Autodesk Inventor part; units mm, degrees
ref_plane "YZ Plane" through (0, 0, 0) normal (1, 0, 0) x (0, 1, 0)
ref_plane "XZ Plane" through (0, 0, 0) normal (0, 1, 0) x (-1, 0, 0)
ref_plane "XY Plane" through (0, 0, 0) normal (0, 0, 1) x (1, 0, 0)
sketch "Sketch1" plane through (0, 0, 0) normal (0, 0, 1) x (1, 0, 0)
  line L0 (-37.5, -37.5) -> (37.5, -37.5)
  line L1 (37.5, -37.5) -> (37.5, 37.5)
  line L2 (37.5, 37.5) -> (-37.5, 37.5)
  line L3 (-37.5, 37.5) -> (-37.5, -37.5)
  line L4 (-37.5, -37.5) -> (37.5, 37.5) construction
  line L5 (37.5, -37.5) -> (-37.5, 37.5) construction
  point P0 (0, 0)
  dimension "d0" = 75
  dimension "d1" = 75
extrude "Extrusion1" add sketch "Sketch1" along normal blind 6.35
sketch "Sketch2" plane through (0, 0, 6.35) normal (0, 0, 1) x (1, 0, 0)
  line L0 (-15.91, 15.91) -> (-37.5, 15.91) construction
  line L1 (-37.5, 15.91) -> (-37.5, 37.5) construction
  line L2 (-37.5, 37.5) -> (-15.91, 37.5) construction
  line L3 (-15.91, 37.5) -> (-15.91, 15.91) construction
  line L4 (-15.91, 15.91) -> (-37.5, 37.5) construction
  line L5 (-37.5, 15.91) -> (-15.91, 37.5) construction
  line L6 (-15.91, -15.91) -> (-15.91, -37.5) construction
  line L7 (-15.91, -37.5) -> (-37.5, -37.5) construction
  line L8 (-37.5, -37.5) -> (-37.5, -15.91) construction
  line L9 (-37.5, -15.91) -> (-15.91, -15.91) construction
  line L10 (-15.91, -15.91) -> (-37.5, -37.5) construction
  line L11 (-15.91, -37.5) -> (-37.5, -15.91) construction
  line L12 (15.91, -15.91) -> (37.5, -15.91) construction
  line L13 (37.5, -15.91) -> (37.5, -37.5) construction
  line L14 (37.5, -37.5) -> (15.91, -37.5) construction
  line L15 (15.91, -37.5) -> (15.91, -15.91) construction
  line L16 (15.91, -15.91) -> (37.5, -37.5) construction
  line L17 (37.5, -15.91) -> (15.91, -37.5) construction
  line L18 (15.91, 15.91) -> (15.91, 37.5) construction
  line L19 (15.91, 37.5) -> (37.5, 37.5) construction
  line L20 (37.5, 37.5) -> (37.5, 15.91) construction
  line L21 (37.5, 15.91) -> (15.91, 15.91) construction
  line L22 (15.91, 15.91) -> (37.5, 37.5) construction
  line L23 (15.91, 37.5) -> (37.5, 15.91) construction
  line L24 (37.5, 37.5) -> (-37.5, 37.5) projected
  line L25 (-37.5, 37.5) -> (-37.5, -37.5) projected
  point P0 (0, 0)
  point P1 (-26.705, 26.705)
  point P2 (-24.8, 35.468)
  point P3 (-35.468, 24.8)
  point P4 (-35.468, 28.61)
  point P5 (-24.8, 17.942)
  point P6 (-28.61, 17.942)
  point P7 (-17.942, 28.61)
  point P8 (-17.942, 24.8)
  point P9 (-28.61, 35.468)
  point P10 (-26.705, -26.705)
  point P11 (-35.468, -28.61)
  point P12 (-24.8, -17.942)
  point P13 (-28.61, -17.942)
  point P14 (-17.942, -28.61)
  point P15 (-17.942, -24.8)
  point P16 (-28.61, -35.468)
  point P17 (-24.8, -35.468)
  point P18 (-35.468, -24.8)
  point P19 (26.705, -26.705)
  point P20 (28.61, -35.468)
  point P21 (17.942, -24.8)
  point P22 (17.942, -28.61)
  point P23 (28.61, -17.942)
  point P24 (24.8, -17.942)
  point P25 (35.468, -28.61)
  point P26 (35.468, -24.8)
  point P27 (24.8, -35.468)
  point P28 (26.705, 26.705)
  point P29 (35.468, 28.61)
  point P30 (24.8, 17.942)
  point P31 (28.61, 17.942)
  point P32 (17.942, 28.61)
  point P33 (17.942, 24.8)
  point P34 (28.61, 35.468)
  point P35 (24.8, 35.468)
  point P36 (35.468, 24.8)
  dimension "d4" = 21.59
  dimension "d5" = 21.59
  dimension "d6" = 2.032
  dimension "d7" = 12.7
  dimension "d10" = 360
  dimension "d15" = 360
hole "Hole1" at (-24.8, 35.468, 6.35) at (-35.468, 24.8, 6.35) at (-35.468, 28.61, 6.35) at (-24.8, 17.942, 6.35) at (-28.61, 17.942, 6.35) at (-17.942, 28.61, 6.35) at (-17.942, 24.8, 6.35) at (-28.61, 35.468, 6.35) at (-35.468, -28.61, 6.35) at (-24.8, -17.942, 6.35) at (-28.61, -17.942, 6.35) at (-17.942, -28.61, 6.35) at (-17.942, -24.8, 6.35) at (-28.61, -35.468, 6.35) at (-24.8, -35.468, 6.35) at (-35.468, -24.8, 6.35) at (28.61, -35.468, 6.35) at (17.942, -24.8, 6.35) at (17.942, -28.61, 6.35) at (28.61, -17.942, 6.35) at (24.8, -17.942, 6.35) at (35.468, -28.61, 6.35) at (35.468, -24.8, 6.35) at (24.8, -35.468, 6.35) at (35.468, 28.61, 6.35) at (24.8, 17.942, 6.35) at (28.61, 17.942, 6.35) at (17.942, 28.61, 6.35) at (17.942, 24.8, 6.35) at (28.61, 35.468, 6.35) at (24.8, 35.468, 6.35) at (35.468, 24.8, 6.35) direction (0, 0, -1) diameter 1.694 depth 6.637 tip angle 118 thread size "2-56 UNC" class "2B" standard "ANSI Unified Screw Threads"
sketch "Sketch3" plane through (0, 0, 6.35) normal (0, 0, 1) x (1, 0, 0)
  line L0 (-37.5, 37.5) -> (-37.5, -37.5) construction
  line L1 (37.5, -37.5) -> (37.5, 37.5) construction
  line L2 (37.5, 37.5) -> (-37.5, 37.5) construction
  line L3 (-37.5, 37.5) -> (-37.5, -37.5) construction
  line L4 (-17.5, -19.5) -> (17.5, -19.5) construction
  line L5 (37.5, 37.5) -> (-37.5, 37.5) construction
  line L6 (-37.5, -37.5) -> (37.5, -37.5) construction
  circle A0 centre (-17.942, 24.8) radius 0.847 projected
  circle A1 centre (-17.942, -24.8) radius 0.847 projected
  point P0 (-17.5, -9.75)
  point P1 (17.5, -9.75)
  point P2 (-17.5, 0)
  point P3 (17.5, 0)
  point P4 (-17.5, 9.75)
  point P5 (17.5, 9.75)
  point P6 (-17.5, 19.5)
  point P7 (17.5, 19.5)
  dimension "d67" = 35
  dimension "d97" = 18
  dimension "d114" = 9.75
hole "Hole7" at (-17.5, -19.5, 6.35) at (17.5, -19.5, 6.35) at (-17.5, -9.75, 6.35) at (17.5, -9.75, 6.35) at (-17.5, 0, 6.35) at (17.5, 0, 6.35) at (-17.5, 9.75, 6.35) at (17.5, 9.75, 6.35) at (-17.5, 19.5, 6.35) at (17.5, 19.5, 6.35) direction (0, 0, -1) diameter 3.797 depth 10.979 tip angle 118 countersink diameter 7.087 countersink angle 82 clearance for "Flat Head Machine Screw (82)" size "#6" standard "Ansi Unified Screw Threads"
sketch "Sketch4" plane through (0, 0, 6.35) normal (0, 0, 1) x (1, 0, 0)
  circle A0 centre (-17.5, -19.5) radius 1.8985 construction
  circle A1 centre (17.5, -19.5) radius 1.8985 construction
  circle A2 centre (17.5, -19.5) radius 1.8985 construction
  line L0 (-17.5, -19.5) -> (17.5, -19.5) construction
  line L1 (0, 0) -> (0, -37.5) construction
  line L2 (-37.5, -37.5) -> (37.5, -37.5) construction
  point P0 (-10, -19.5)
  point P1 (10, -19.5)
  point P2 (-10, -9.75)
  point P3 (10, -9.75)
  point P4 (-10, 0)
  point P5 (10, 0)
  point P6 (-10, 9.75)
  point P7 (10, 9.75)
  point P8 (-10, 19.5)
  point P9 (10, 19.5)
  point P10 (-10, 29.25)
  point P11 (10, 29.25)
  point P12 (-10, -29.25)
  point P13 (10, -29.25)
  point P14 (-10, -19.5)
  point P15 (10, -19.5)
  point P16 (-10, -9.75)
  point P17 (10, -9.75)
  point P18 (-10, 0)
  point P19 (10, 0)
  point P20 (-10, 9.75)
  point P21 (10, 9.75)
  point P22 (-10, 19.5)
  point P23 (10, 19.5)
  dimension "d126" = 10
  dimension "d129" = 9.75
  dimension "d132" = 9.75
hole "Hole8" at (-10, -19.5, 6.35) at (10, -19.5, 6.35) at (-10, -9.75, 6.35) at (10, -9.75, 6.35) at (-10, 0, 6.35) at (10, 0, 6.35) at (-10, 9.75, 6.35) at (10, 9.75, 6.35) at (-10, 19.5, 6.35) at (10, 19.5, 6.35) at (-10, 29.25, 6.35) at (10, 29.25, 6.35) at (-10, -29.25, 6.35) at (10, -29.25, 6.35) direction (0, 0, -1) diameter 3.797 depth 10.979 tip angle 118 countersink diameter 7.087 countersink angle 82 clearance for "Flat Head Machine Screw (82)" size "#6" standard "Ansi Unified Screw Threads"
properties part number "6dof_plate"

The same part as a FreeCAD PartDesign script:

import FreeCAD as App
import Part
import Sketcher
Q = App.Units.Quantity


def add_polygon(sketch, points):
    """Adds a closed chain of lines whose ends are joined by coincident constraints."""
    first, n = sketch.GeometryCount, len(points)
    for a, b in zip(points, points[1:] + points[:1]):
        sketch.addGeometry(Part.LineSegment(App.Vector(*a, 0), App.Vector(*b, 0)), False)
    for i in range(n):
        sketch.addConstraint(Sketcher.Constraint("Coincident", first + i, 2, first + (i + 1) % n, 1))

doc = App.newDocument("Part")
body = doc.addObject("PartDesign::Body", "Body")

sketch1 = body.newObject("Sketcher::SketchObject", "Sketch")
sketch1.AttachmentSupport = (doc.getObject("XY_Plane"), [""])
sketch1.MapMode = "FlatFace"
add_polygon(sketch1, [(-38, 38), (-38, -38), (38, -38), (38, 38)])
sketch1.addConstraint([
    Sketcher.Constraint("Vertical", 0),
    Sketcher.Constraint("Horizontal", 1),
    Sketcher.Constraint("Vertical", 2),
    Sketcher.Constraint("Horizontal", 3),
    Sketcher.Constraint("Symmetric", 0, 2, 2, 2, -1, 1),
    Sketcher.Constraint("Equal", 3, 0),
    Sketcher.Constraint("DistanceX", 1, 1, 1, 2, Q("75 mm")),
])
pad1 = body.newObject("PartDesign::Pad", "Pad")
pad1.Profile = sketch1
pad1.Length = 6.35

sketch2 = body.newObject("Sketcher::SketchObject", "Sketch001")
sketch2.AttachmentSupport = (doc.getObject("XY_Plane"), [""])
sketch2.MapMode = "FlatFace"
sketch2.AttachmentOffset = App.Placement(App.Vector(0, 0, 6.35), App.Rotation())
sketch2.addGeometry([
    Part.Circle(App.Vector(-24.8, 35.5, 0), App.Vector(0, 0, 1), 0.8),
    Part.Circle(App.Vector(-35.5, 24.8, 0), App.Vector(0, 0, 1), 0.8),
    Part.Circle(App.Vector(-35.5, 28.6, 0), App.Vector(0, 0, 1), 0.8),
    Part.Circle(App.Vector(-24.8, 17.9, 0), App.Vector(0, 0, 1), 0.8),
    Part.Circle(App.Vector(-28.6, 17.9, 0), App.Vector(0, 0, 1), 0.8),
    Part.Circle(App.Vector(-17.9, 28.6, 0), App.Vector(0, 0, 1), 0.8),
    Part.Circle(App.Vector(-17.9, 24.8, 0), App.Vector(0, 0, 1), 0.8),
    Part.Circle(App.Vector(-28.6, 35.5, 0), App.Vector(0, 0, 1), 0.8),
    Part.Circle(App.Vector(-35.5, -28.6, 0), App.Vector(0, 0, 1), 0.8),
    Part.Circle(App.Vector(-24.8, -17.9, 0), App.Vector(0, 0, 1), 0.8),
    Part.Circle(App.Vector(-28.6, -17.9, 0), App.Vector(0, 0, 1), 0.8),
    Part.Circle(App.Vector(-17.9, -28.6, 0), App.Vector(0, 0, 1), 0.8),
    Part.Circle(App.Vector(-17.9, -24.8, 0), App.Vector(0, 0, 1), 0.8),
    Part.Circle(App.Vector(-28.6, -35.5, 0), App.Vector(0, 0, 1), 0.8),
    Part.Circle(App.Vector(-24.8, -35.5, 0), App.Vector(0, 0, 1), 0.8),
    Part.Circle(App.Vector(-35.5, -24.8, 0), App.Vector(0, 0, 1), 0.8),
    Part.Circle(App.Vector(28.6, -35.5, 0), App.Vector(0, 0, 1), 0.8),
    Part.Circle(App.Vector(17.9, -24.8, 0), App.Vector(0, 0, 1), 0.8),
    Part.Circle(App.Vector(17.9, -28.6, 0), App.Vector(0, 0, 1), 0.8),
    Part.Circle(App.Vector(28.6, -17.9, 0), App.Vector(0, 0, 1), 0.8),
    Part.Circle(App.Vector(24.8, -17.9, 0), App.Vector(0, 0, 1), 0.8),
    Part.Circle(App.Vector(35.5, -28.6, 0), App.Vector(0, 0, 1), 0.8),
    Part.Circle(App.Vector(35.5, -24.8, 0), App.Vector(0, 0, 1), 0.8),
    Part.Circle(App.Vector(24.8, -35.5, 0), App.Vector(0, 0, 1), 0.8),
    Part.Circle(App.Vector(35.5, 28.6, 0), App.Vector(0, 0, 1), 0.8),
    Part.Circle(App.Vector(24.8, 17.9, 0), App.Vector(0, 0, 1), 0.8),
    Part.Circle(App.Vector(28.6, 17.9, 0), App.Vector(0, 0, 1), 0.8),
    Part.Circle(App.Vector(17.9, 28.6, 0), App.Vector(0, 0, 1), 0.8),
    Part.Circle(App.Vector(17.9, 24.8, 0), App.Vector(0, 0, 1), 0.8),
    Part.Circle(App.Vector(28.6, 35.5, 0), App.Vector(0, 0, 1), 0.8),
    Part.Circle(App.Vector(24.8, 35.5, 0), App.Vector(0, 0, 1), 0.8),
    Part.Circle(App.Vector(35.5, 24.8, 0), App.Vector(0, 0, 1), 0.8),
], False)
sketch2.addConstraint([
    Sketcher.Constraint("Equal", 0, 1),
    Sketcher.Constraint("Equal", 1, 2),
    Sketcher.Constraint("Equal", 2, 3),
    Sketcher.Constraint("Equal", 3, 4),
    Sketcher.Constraint("Equal", 4, 5),
    Sketcher.Constraint("Equal", 5, 6),
    Sketcher.Constraint("Equal", 6, 7),
    Sketcher.Constraint("Equal", 7, 8),
    Sketcher.Constraint("Equal", 8, 9),
    Sketcher.Constraint("Equal", 9, 10),
    Sketcher.Constraint("Equal", 10, 11),
    Sketcher.Constraint("Equal", 11, 12),
    Sketcher.Constraint("Equal", 12, 13),
    Sketcher.Constraint("Equal", 13, 14),
    Sketcher.Constraint("Equal", 14, 15),
    Sketcher.Constraint("Equal", 15, 16),
    Sketcher.Constraint("Equal", 16, 17),
    Sketcher.Constraint("Equal", 17, 18),
    Sketcher.Constraint("Equal", 18, 19),
    Sketcher.Constraint("Equal", 19, 20),
    Sketcher.Constraint("Equal", 20, 21),
    Sketcher.Constraint("Equal", 21, 22),
    Sketcher.Constraint("Equal", 22, 23),
    Sketcher.Constraint("Equal", 23, 24),
    Sketcher.Constraint("Equal", 24, 25),
    Sketcher.Constraint("Equal", 25, 26),
    Sketcher.Constraint("Equal", 26, 27),
    Sketcher.Constraint("Equal", 27, 28),
    Sketcher.Constraint("Equal", 28, 29),
    Sketcher.Constraint("Equal", 29, 30),
    Sketcher.Constraint("Equal", 30, 31),
    Sketcher.Constraint("Symmetric", 7, 3, 16, 3, -1, 1),
    Sketcher.Constraint("Symmetric", 6, 3, 17, 3, -1, 1),
    Sketcher.Constraint("Symmetric", 5, 3, 18, 3, -1, 1),
    Sketcher.Constraint("Symmetric", 4, 3, 19, 3, -1, 1),
    Sketcher.Constraint("Symmetric", 3, 3, 20, 3, -1, 1),
    Sketcher.Constraint("Symmetric", 2, 3, 21, 3, -1, 1),
    Sketcher.Constraint("Symmetric", 1, 3, 22, 3, -1, 1),
    Sketcher.Constraint("Symmetric", 0, 3, 23, 3, -1, 1),
    Sketcher.Constraint("Symmetric", 8, 3, 24, 3, -1, 1),
    Sketcher.Constraint("Symmetric", 9, 3, 25, 3, -1, 1),
    Sketcher.Constraint("Symmetric", 10, 3, 26, 3, -1, 1),
    Sketcher.Constraint("Symmetric", 11, 3, 27, 3, -1, 1),
    Sketcher.Constraint("Symmetric", 12, 3, 28, 3, -1, 1),
    Sketcher.Constraint("Symmetric", 13, 3, 29, 3, -1, 1),
    Sketcher.Constraint("Symmetric", 14, 3, 30, 3, -1, 1),
    Sketcher.Constraint("Symmetric", 15, 3, 31, 3, -1, 1),
    Sketcher.Constraint("Symmetric", 13, 3, 16, 3, -2),
    Sketcher.Constraint("Symmetric", 12, 3, 17, 3, -2),
    Sketcher.Constraint("Symmetric", 11, 3, 18, 3, -2),
    Sketcher.Constraint("Symmetric", 10, 3, 19, 3, -2),
    Sketcher.Constraint("Symmetric", 9, 3, 20, 3, -2),
    Sketcher.Constraint("Symmetric", 8, 3, 21, 3, -2),
    Sketcher.Constraint("Symmetric", 15, 3, 22, 3, -2),
    Sketcher.Constraint("Symmetric", 14, 3, 23, 3, -2),
    Sketcher.Constraint("Horizontal", 3, 3, 4, 3),
    Sketcher.Constraint("Horizontal", 2, 3, 5, 3),
    Sketcher.Constraint("Horizontal", 1, 3, 6, 3),
    Sketcher.Constraint("Horizontal", 0, 3, 7, 3),
    Sketcher.Constraint("Vertical", 1, 3, 2, 3),
    Sketcher.Constraint("Vertical", 0, 3, 3, 3),
    Sketcher.Constraint("Vertical", 5, 3, 6, 3),
    Sketcher.Constraint("Vertical", 4, 3, 7, 3),
    Sketcher.Constraint("Diameter", 0, Q("1.694 mm")),
    Sketcher.Constraint("DistanceX", 0, 3, -1, 1, Q("24.8 mm")),
    Sketcher.Constraint("DistanceY", -1, 1, 1, 3, Q("24.8 mm")),
    Sketcher.Constraint("DistanceY", -1, 1, 2, 3, Q("28.61 mm")),
    Sketcher.Constraint("DistanceX", 4, 3, -1, 1, Q("28.61 mm")),
    Sketcher.Constraint("DistanceX", 5, 3, 24, 3, Q("53.41 mm")),
    Sketcher.Constraint("DistanceY", -1, 1, 0, 3, Q("35.468 mm")),
    Sketcher.Constraint("DistanceX", 1, 3, -1, 1, Q("35.468 mm")),
    Sketcher.Constraint("DistanceY", -1, 1, 3, 3, Q("17.942 mm")),
])
doc.recompute()
hole = body.newObject("PartDesign::Hole", "Hole")
hole.Profile = sketch2
hole.ThreadType = "None"
hole.Diameter = 1.694
hole.DepthType = "Dimension"
hole.Depth = 6.637
hole.DrillPoint = "Angled"
hole.DrillPointAngle = 118

sketch3 = body.newObject("Sketcher::SketchObject", "Sketch002")
sketch3.AttachmentSupport = (doc.getObject("XY_Plane"), [""])
sketch3.MapMode = "FlatFace"
sketch3.AttachmentOffset = App.Placement(App.Vector(0, 0, 6.35), App.Rotation())
sketch3.addGeometry([
    Part.Circle(App.Vector(-17.5, -19.5, 0), App.Vector(0, 0, 1), 1.9),
    Part.Circle(App.Vector(17.5, -19.5, 0), App.Vector(0, 0, 1), 1.9),
    Part.Circle(App.Vector(-17.5, -9.8, 0), App.Vector(0, 0, 1), 1.9),
    Part.Circle(App.Vector(17.5, -9.8, 0), App.Vector(0, 0, 1), 1.9),
    Part.Circle(App.Vector(-17.5, 0, 0), App.Vector(0, 0, 1), 1.9),
    Part.Circle(App.Vector(17.5, 0, 0), App.Vector(0, 0, 1), 1.9),
    Part.Circle(App.Vector(-17.5, 9.8, 0), App.Vector(0, 0, 1), 1.9),
    Part.Circle(App.Vector(17.5, 9.8, 0), App.Vector(0, 0, 1), 1.9),
    Part.Circle(App.Vector(-17.5, 19.5, 0), App.Vector(0, 0, 1), 1.9),
    Part.Circle(App.Vector(17.5, 19.5, 0), App.Vector(0, 0, 1), 1.9),
], False)
sketch3.addConstraint([
    Sketcher.Constraint("Equal", 0, 1),
    Sketcher.Constraint("Equal", 1, 2),
    Sketcher.Constraint("Equal", 2, 3),
    Sketcher.Constraint("Equal", 3, 4),
    Sketcher.Constraint("Equal", 4, 5),
    Sketcher.Constraint("Equal", 5, 6),
    Sketcher.Constraint("Equal", 6, 7),
    Sketcher.Constraint("Equal", 7, 8),
    Sketcher.Constraint("Equal", 8, 9),
    Sketcher.Constraint("Symmetric", 4, 3, 5, 3, -1, 1),
    Sketcher.Constraint("Symmetric", 3, 3, 6, 3, -1, 1),
    Sketcher.Constraint("Symmetric", 2, 3, 7, 3, -1, 1),
    Sketcher.Constraint("Symmetric", 1, 3, 8, 3, -1, 1),
    Sketcher.Constraint("Symmetric", 0, 3, 9, 3, -1, 1),
    Sketcher.Constraint("Symmetric", 0, 3, 1, 3, -2),
    Sketcher.Constraint("Symmetric", 2, 3, 3, 3, -2),
    Sketcher.Constraint("PointOnObject", 4, 3, -1),
    Sketcher.Constraint("Vertical", 0, 3, 2, 3),
    Sketcher.Constraint("Vertical", 2, 3, 4, 3),
    Sketcher.Constraint("Diameter", 0, Q("3.797 mm")),
    Sketcher.Constraint("DistanceX", 0, 3, 1, 3, Q("35 mm")),
    Sketcher.Constraint("DistanceY", 0, 3, 8, 3, Q("39 mm")),
    Sketcher.Constraint("DistanceY", 2, 3, 6, 3, Q("19.5 mm")),
])
doc.recompute()
hole2 = body.newObject("PartDesign::Hole", "Hole001")
hole2.Profile = sketch3
hole2.ThreadType = "None"
hole2.Diameter = 3.797
hole2.DepthType = "Dimension"
hole2.Depth = 10.979
hole2.DrillPoint = "Angled"
hole2.DrillPointAngle = 118
hole2.HoleCutType = "Countersink"
hole2.HoleCutDiameter = 7.087
hole2.HoleCutCountersinkAngle = 82

sketch4 = body.newObject("Sketcher::SketchObject", "Sketch003")
sketch4.AttachmentSupport = (doc.getObject("XY_Plane"), [""])
sketch4.MapMode = "FlatFace"
sketch4.AttachmentOffset = App.Placement(App.Vector(0, 0, 6.35), App.Rotation())
sketch4.addGeometry([
    Part.Circle(App.Vector(-10, -19.5, 0), App.Vector(0, 0, 1), 1.9),
    Part.Circle(App.Vector(10, -19.5, 0), App.Vector(0, 0, 1), 1.9),
    Part.Circle(App.Vector(-10, -9.8, 0), App.Vector(0, 0, 1), 1.9),
    Part.Circle(App.Vector(10, -9.8, 0), App.Vector(0, 0, 1), 1.9),
    Part.Circle(App.Vector(-10, 0, 0), App.Vector(0, 0, 1), 1.9),
    Part.Circle(App.Vector(10, 0, 0), App.Vector(0, 0, 1), 1.9),
    Part.Circle(App.Vector(-10, 9.8, 0), App.Vector(0, 0, 1), 1.9),
    Part.Circle(App.Vector(10, 9.8, 0), App.Vector(0, 0, 1), 1.9),
    Part.Circle(App.Vector(-10, 19.5, 0), App.Vector(0, 0, 1), 1.9),
    Part.Circle(App.Vector(10, 19.5, 0), App.Vector(0, 0, 1), 1.9),
    Part.Circle(App.Vector(-10, 29.2, 0), App.Vector(0, 0, 1), 1.9),
    Part.Circle(App.Vector(10, 29.2, 0), App.Vector(0, 0, 1), 1.9),
    Part.Circle(App.Vector(-10, -29.2, 0), App.Vector(0, 0, 1), 1.9),
    Part.Circle(App.Vector(10, -29.2, 0), App.Vector(0, 0, 1), 1.9),
], False)
sketch4.addConstraint([
    Sketcher.Constraint("Equal", 0, 1),
    Sketcher.Constraint("Equal", 1, 2),
    Sketcher.Constraint("Equal", 2, 3),
    Sketcher.Constraint("Equal", 3, 4),
    Sketcher.Constraint("Equal", 4, 5),
    Sketcher.Constraint("Equal", 5, 6),
    Sketcher.Constraint("Equal", 6, 7),
    Sketcher.Constraint("Equal", 7, 8),
    Sketcher.Constraint("Equal", 8, 9),
    Sketcher.Constraint("Equal", 9, 10),
    Sketcher.Constraint("Equal", 10, 11),
    Sketcher.Constraint("Equal", 11, 12),
    Sketcher.Constraint("Equal", 12, 13),
    Sketcher.Constraint("Symmetric", 4, 3, 5, 3, -1, 1),
    Sketcher.Constraint("Symmetric", 3, 3, 6, 3, -1, 1),
    Sketcher.Constraint("Symmetric", 2, 3, 7, 3, -1, 1),
    Sketcher.Constraint("Symmetric", 1, 3, 8, 3, -1, 1),
    Sketcher.Constraint("Symmetric", 0, 3, 9, 3, -1, 1),
    Sketcher.Constraint("Symmetric", 11, 3, 12, 3, -1, 1),
    Sketcher.Constraint("Symmetric", 10, 3, 13, 3, -1, 1),
    Sketcher.Constraint("Symmetric", 0, 3, 1, 3, -2),
    Sketcher.Constraint("Symmetric", 2, 3, 3, 3, -2),
    Sketcher.Constraint("Symmetric", 10, 3, 11, 3, -2),
    Sketcher.Constraint("PointOnObject", 4, 3, -1),
    Sketcher.Constraint("Vertical", 0, 3, 2, 3),
    Sketcher.Constraint("Vertical", 2, 3, 4, 3),
    Sketcher.Constraint("Vertical", 8, 3, 10, 3),
    Sketcher.Constraint("Diameter", 0, Q("3.797 mm")),
    Sketcher.Constraint("DistanceX", 0, 3, -1, 1, Q("10 mm")),
    Sketcher.Constraint("DistanceY", 0, 3, -1, 1, Q("19.5 mm")),
    Sketcher.Constraint("DistanceY", 2, 3, 6, 3, Q("19.5 mm")),
    Sketcher.Constraint("DistanceY", 6, 3, 10, 3, Q("19.5 mm")),
])
doc.recompute()
hole3 = body.newObject("PartDesign::Hole", "Hole002")
hole3.Profile = sketch4
hole3.ThreadType = "None"
hole3.Diameter = 3.797
hole3.DepthType = "Dimension"
hole3.Depth = 10.979
hole3.DrillPoint = "Angled"
hole3.DrillPointAngle = 118
hole3.HoleCutType = "Countersink"
hole3.HoleCutDiameter = 7.087
hole3.HoleCutCountersinkAngle = 82

doc.recompute()
